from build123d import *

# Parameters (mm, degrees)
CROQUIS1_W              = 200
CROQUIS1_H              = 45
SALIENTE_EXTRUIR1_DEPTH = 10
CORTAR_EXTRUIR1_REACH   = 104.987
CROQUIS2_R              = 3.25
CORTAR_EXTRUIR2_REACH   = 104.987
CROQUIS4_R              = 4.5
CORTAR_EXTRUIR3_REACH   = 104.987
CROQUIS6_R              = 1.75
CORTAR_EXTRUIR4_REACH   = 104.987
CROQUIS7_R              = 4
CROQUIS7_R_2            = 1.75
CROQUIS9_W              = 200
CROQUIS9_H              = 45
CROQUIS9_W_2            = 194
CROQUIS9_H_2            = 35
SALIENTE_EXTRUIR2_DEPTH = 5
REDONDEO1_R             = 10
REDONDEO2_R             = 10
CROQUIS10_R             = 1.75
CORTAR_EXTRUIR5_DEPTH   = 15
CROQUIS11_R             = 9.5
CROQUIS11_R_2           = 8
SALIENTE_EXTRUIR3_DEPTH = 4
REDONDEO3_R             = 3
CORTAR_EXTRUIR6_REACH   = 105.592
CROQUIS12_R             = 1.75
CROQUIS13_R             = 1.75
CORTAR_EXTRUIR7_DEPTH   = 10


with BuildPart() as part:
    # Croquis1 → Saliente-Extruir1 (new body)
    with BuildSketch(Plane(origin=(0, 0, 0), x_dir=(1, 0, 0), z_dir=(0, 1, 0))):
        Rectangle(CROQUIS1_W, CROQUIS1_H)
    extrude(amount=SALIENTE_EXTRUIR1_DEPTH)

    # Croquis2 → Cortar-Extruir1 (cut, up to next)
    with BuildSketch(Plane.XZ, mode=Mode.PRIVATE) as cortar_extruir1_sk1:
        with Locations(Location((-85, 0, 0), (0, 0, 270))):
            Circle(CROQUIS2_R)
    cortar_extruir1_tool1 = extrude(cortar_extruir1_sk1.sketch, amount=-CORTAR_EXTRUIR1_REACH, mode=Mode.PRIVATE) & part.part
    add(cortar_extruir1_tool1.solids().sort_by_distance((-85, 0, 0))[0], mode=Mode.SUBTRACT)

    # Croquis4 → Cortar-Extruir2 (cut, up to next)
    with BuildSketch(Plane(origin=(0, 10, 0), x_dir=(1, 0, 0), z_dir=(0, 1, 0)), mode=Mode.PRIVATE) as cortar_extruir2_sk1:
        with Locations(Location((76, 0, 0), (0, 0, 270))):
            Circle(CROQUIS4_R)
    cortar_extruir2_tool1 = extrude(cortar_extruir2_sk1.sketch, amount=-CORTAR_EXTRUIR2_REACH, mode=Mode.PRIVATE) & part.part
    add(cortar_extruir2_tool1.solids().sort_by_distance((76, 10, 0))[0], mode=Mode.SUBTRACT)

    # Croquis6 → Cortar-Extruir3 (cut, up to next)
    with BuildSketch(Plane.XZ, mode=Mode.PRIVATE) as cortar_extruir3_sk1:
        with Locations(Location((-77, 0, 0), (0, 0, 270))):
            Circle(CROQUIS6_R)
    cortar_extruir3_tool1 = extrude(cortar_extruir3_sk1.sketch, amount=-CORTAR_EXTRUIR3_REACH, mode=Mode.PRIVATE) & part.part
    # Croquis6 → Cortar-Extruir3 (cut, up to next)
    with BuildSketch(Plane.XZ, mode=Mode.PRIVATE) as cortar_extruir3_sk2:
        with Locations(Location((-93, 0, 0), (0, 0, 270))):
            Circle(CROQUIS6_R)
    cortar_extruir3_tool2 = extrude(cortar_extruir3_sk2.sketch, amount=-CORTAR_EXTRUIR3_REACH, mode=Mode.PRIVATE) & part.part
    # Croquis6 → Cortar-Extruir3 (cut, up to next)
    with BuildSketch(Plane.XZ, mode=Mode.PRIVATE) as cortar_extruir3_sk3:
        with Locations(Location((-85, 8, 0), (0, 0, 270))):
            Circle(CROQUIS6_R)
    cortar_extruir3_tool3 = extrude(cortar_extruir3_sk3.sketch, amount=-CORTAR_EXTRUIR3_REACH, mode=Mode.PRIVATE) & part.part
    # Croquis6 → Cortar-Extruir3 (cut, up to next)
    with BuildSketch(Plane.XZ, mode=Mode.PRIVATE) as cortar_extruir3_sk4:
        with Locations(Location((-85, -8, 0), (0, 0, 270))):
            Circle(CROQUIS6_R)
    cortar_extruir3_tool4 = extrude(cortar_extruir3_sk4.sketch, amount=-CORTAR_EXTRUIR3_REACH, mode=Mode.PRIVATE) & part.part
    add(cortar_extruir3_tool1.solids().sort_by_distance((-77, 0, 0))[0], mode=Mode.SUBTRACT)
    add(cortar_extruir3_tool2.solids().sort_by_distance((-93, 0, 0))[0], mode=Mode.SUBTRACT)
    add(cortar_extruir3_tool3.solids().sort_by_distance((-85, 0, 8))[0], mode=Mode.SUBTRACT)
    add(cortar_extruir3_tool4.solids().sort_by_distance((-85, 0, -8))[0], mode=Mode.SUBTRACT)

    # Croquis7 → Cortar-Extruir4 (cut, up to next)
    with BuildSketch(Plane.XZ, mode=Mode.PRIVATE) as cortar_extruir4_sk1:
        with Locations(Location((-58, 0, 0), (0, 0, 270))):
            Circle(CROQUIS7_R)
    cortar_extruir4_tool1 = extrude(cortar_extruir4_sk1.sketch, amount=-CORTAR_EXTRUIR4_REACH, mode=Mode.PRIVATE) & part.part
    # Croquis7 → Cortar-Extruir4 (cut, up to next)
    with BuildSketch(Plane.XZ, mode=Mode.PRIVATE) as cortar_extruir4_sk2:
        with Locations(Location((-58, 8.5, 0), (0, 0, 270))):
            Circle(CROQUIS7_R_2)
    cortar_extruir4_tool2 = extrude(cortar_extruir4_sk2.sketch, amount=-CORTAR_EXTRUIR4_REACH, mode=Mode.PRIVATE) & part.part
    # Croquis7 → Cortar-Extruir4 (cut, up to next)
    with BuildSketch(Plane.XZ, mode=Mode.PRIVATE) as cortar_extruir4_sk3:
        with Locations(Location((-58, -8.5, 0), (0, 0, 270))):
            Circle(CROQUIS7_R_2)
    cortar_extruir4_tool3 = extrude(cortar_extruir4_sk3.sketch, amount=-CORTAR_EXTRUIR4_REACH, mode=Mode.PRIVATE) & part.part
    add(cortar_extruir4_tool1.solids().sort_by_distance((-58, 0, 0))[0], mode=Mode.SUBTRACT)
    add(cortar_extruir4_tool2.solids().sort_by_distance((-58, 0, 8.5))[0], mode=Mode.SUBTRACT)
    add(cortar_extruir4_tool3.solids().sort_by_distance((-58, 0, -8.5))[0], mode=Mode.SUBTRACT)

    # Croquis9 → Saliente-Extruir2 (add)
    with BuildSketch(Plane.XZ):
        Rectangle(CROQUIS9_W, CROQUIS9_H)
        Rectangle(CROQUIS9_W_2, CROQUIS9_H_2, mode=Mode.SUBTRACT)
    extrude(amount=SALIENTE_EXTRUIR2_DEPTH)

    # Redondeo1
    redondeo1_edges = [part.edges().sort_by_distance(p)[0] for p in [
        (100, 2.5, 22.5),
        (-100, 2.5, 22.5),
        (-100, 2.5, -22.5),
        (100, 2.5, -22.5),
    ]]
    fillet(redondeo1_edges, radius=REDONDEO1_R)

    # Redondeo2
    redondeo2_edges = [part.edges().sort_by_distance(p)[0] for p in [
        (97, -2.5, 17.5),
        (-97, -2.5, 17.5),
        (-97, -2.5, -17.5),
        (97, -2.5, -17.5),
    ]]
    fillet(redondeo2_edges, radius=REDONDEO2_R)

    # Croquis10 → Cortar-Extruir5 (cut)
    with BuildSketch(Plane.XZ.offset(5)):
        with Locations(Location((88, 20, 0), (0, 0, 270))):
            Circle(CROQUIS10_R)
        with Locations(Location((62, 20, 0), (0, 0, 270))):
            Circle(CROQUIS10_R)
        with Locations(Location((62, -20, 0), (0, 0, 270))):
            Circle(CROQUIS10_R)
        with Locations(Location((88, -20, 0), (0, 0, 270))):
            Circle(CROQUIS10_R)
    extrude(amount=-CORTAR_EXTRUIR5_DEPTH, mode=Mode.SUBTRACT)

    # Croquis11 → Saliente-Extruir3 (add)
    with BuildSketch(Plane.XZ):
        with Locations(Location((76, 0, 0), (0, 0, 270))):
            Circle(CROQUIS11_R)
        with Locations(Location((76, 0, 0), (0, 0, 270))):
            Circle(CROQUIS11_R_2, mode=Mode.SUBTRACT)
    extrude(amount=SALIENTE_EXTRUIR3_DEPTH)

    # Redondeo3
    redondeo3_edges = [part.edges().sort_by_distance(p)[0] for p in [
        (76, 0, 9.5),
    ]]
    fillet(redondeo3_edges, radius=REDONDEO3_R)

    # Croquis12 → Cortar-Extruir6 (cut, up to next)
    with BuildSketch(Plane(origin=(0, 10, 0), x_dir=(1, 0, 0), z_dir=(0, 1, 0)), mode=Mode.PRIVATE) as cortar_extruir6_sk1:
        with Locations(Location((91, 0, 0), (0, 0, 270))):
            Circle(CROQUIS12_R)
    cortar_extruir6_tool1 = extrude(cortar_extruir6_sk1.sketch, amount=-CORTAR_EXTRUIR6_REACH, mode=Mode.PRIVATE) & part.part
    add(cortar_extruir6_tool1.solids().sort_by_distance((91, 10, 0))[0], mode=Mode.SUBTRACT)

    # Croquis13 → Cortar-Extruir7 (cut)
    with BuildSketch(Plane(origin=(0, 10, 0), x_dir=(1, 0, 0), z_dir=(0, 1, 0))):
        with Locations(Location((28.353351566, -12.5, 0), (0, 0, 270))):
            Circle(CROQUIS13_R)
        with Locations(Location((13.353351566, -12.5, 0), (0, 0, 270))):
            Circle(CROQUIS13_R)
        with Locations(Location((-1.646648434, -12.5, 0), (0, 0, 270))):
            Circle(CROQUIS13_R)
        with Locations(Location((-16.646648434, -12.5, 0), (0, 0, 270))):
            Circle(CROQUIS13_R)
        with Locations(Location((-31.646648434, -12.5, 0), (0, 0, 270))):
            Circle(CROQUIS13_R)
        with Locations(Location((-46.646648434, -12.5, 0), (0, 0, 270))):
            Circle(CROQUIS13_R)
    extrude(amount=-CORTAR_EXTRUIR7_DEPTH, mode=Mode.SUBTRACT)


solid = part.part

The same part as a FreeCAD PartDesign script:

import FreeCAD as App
import Part
import Sketcher


def edges_at(feature, points):
    """Names of the edges that pass closest to the given points."""
    edges = feature.Shape.Edges
    near = lambda p: min(range(len(edges)), key=lambda i: edges[i].distToShape(Part.Vertex(*p))[0])
    return sorted({f"Edge{near(p) + 1}" for p in points})

doc = App.newDocument("Part")
body = doc.addObject("PartDesign::Body", "Body")

# Sketch on XZ plane
sketch1 = body.newObject("Sketcher::SketchObject", "Sketch")
sketch1.AttachmentSupport = (doc.getObject("XZ_Plane"), [""])
sketch1.MapMode = "FlatFace"
sketch1.addGeometry(Part.LineSegment(App.Vector(-100, -22, 0), App.Vector(-100, 22, 0)), False)
sketch1.addGeometry(Part.LineSegment(App.Vector(-100, 22, 0), App.Vector(100, 22, 0)), False)
sketch1.addGeometry(Part.LineSegment(App.Vector(100, 22, 0), App.Vector(100, -22, 0)), False)
sketch1.addGeometry(Part.LineSegment(App.Vector(100, -22, 0), App.Vector(-100, -22, 0)), False)
sketch1.addConstraint(Sketcher.Constraint("Coincident", 0, 2, 1, 1))
sketch1.addConstraint(Sketcher.Constraint("Coincident", 1, 2, 2, 1))
sketch1.addConstraint(Sketcher.Constraint("Coincident", 2, 2, 3, 1))
sketch1.addConstraint(Sketcher.Constraint("Coincident", 3, 2, 0, 1))
sketch1.addConstraint(Sketcher.Constraint("Vertical", 0))
sketch1.addConstraint(Sketcher.Constraint("Horizontal", 1))
sketch1.addConstraint(Sketcher.Constraint("Vertical", 2))
sketch1.addConstraint(Sketcher.Constraint("Horizontal", 3))
sketch1.addConstraint(Sketcher.Constraint("Symmetric", 0, 2, 2, 2, -1, 1))
sketch1.addConstraint(Sketcher.Constraint("DistanceX", 1, 1, 1, 2, 200.0))
sketch1.addConstraint(Sketcher.Constraint("DistanceY", 0, 1, 0, 2, 45.0))
pad1 = body.newObject("PartDesign::Pad", "Pad")
pad1.Profile = sketch1
pad1.Length = 10
pad1.Reversed = True

# Sketch on XZ plane
sketch2 = body.newObject("Sketcher::SketchObject", "Sketch001")
sketch2.AttachmentSupport = (doc.getObject("XZ_Plane"), [""])
sketch2.MapMode = "FlatFace"
sketch2.addGeometry(Part.Circle(App.Vector(-85, 0, 0), App.Vector(0, 0, 1), 3.2), False)
sketch2.addConstraint(Sketcher.Constraint("PointOnObject", 0, 3, -1))
sketch2.addConstraint(Sketcher.Constraint("Diameter", 0, 6.5))
sketch2.addConstraint(Sketcher.Constraint("DistanceX", 0, 3, -1, 1, 85.0))
pocket1 = body.newObject("PartDesign::Pocket", "Pocket")
pocket1.Profile = sketch2
pocket1.Type = "UpToFirst"

# Sketch on XZ plane
sketch3 = body.newObject("Sketcher::SketchObject", "Sketch002")
sketch3.AttachmentSupport = (doc.getObject("XZ_Plane"), [""])
sketch3.MapMode = "FlatFace"
sketch3.AttachmentOffset = App.Placement(App.Vector(0, 0, -10), App.Rotation())
sketch3.addGeometry(Part.Circle(App.Vector(76, 0, 0), App.Vector(0, 0, 1), 4.5), False)
sketch3.addConstraint(Sketcher.Constraint("PointOnObject", 0, 3, -1))
sketch3.addConstraint(Sketcher.Constraint("Diameter", 0, 9.0))
sketch3.addConstraint(Sketcher.Constraint("DistanceX", -1, 1, 0, 3, 76.0))
pocket2 = body.newObject("PartDesign::Pocket", "Pocket001")
pocket2.Profile = sketch3
pocket2.Type = "UpToFirst"
pocket2.Reversed = True

# Sketch on XZ plane
sketch4 = body.newObject("Sketcher::SketchObject", "Sketch003")
sketch4.AttachmentSupport = (doc.getObject("XZ_Plane"), [""])
sketch4.MapMode = "FlatFace"
sketch4.addGeometry(Part.Circle(App.Vector(-77, 0, 0), App.Vector(0, 0, 1), 1.8), False)
sketch4.addConstraint(Sketcher.Constraint("PointOnObject", 0, 3, -1))
sketch4.addConstraint(Sketcher.Constraint("Diameter", 0, 3.5))
sketch4.addConstraint(Sketcher.Constraint("DistanceX", 0, 3, -1, 1, 77.0))
pocket3 = body.newObject("PartDesign::Pocket", "Pocket002")
pocket3.Profile = sketch4
pocket3.Type = "UpToFirst"

# Sketch on XZ plane
sketch5 = body.newObject("Sketcher::SketchObject", "Sketch004")
sketch5.AttachmentSupport = (doc.getObject("XZ_Plane"), [""])
sketch5.MapMode = "FlatFace"
sketch5.addGeometry(Part.Circle(App.Vector(-93, 0, 0), App.Vector(0, 0, 1), 1.8), False)
sketch5.addConstraint(Sketcher.Constraint("PointOnObject", 0, 3, -1))
sketch5.addConstraint(Sketcher.Constraint("Diameter", 0, 3.5))
sketch5.addConstraint(Sketcher.Constraint("DistanceX", 0, 3, -1, 1, 93.0))
pocket4 = body.newObject("PartDesign::Pocket", "Pocket003")
pocket4.Profile = sketch5
pocket4.Type = "UpToFirst"

# Sketch on XZ plane
sketch6 = body.newObject("Sketcher::SketchObject", "Sketch005")
sketch6.AttachmentSupport = (doc.getObject("XZ_Plane"), [""])
sketch6.MapMode = "FlatFace"
sketch6.addGeometry(Part.Circle(App.Vector(-85, 8, 0), App.Vector(0, 0, 1), 1.8), False)
sketch6.addConstraint(Sketcher.Constraint("Diameter", 0, 3.5))
sketch6.addConstraint(Sketcher.Constraint("DistanceX", 0, 3, -1, 1, 85.0))
sketch6.addConstraint(Sketcher.Constraint("DistanceY", -1, 1, 0, 3, 8.0))
pocket5 = body.newObject("PartDesign::Pocket", "Pocket004")
pocket5.Profile = sketch6
pocket5.Type = "UpToFirst"

# Sketch on XZ plane
sketch7 = body.newObject("Sketcher::SketchObject", "Sketch006")
sketch7.AttachmentSupport = (doc.getObject("XZ_Plane"), [""])
sketch7.MapMode = "FlatFace"
sketch7.addGeometry(Part.Circle(App.Vector(-85, -8, 0), App.Vector(0, 0, 1), 1.8), False)
sketch7.addConstraint(Sketcher.Constraint("Diameter", 0, 3.5))
sketch7.addConstraint(Sketcher.Constraint("DistanceX", 0, 3, -1, 1, 85.0))
sketch7.addConstraint(Sketcher.Constraint("DistanceY", 0, 3, -1, 1, 8.0))
pocket6 = body.newObject("PartDesign::Pocket", "Pocket005")
pocket6.Profile = sketch7
pocket6.Type = "UpToFirst"

# Sketch on XZ plane
sketch8 = body.newObject("Sketcher::SketchObject", "Sketch007")
sketch8.AttachmentSupport = (doc.getObject("XZ_Plane"), [""])
sketch8.MapMode = "FlatFace"
sketch8.addGeometry(Part.Circle(App.Vector(-58, 0, 0), App.Vector(0, 0, 1), 4), False)
sketch8.addConstraint(Sketcher.Constraint("PointOnObject", 0, 3, -1))
sketch8.addConstraint(Sketcher.Constraint("Diameter", 0, 8.0))
sketch8.addConstraint(Sketcher.Constraint("DistanceX", 0, 3, -1, 1, 58.0))
pocket7 = body.newObject("PartDesign::Pocket", "Pocket006")
pocket7.Profile = sketch8
pocket7.Type = "UpToFirst"

# Sketch on XZ plane
sketch9 = body.newObject("Sketcher::SketchObject", "Sketch008")
sketch9.AttachmentSupport = (doc.getObject("XZ_Plane"), [""])
sketch9.MapMode = "FlatFace"
sketch9.addGeometry(Part.Circle(App.Vector(-58, 8.5, 0), App.Vector(0, 0, 1), 1.8), False)
sketch9.addConstraint(Sketcher.Constraint("Diameter", 0, 3.5))
sketch9.addConstraint(Sketcher.Constraint("DistanceX", 0, 3, -1, 1, 58.0))
sketch9.addConstraint(Sketcher.Constraint("DistanceY", -1, 1, 0, 3, 8.5))
pocket8 = body.newObject("PartDesign::Pocket", "Pocket007")
pocket8.Profile = sketch9
pocket8.Type = "UpToFirst"

# Sketch on XZ plane
sketch10 = body.newObject("Sketcher::SketchObject", "Sketch009")
sketch10.AttachmentSupport = (doc.getObject("XZ_Plane"), [""])
sketch10.MapMode = "FlatFace"
sketch10.addGeometry(Part.Circle(App.Vector(-58, -8.5, 0), App.Vector(0, 0, 1), 1.8), False)
sketch10.addConstraint(Sketcher.Constraint("Diameter", 0, 3.5))
sketch10.addConstraint(Sketcher.Constraint("DistanceX", 0, 3, -1, 1, 58.0))
sketch10.addConstraint(Sketcher.Constraint("DistanceY", 0, 3, -1, 1, 8.5))
pocket9 = body.newObject("PartDesign::Pocket", "Pocket008")
pocket9.Profile = sketch10
pocket9.Type = "UpToFirst"

# Sketch on XZ plane
sketch11 = body.newObject("Sketcher::SketchObject", "Sketch010")
sketch11.AttachmentSupport = (doc.getObject("XZ_Plane"), [""])
sketch11.MapMode = "FlatFace"
sketch11.addGeometry(Part.LineSegment(App.Vector(-100, 22, 0), App.Vector(-100, -22, 0)), False)
sketch11.addGeometry(Part.LineSegment(App.Vector(-100, -22, 0), App.Vector(100, -22, 0)), False)
sketch11.addGeometry(Part.LineSegment(App.Vector(100, -22, 0), App.Vector(100, 22, 0)), False)
sketch11.addGeometry(Part.LineSegment(App.Vector(100, 22, 0), App.Vector(-100, 22, 0)), False)
sketch11.addGeometry(Part.LineSegment(App.Vector(97, -18, 0), App.Vector(-97, -18, 0)), False)
sketch11.addGeometry(Part.LineSegment(App.Vector(-97, -18, 0), App.Vector(-97, 18, 0)), False)
sketch11.addGeometry(Part.LineSegment(App.Vector(-97, 18, 0), App.Vector(97, 18, 0)), False)
sketch11.addGeometry(Part.LineSegment(App.Vector(97, 18, 0), App.Vector(97, -18, 0)), False)
sketch11.addConstraint(Sketcher.Constraint("Coincident", 0, 2, 1, 1))
sketch11.addConstraint(Sketcher.Constraint("Coincident", 1, 2, 2, 1))
sketch11.addConstraint(Sketcher.Constraint("Coincident", 2, 2, 3, 1))
sketch11.addConstraint(Sketcher.Constraint("Coincident", 3, 2, 0, 1))
sketch11.addConstraint(Sketcher.Constraint("Coincident", 4, 2, 5, 1))
sketch11.addConstraint(Sketcher.Constraint("Coincident", 5, 2, 6, 1))
sketch11.addConstraint(Sketcher.Constraint("Coincident", 6, 2, 7, 1))
sketch11.addConstraint(Sketcher.Constraint("Coincident", 7, 2, 4, 1))
sketch11.addConstraint(Sketcher.Constraint("Vertical", 0))
sketch11.addConstraint(Sketcher.Constraint("Horizontal", 1))
sketch11.addConstraint(Sketcher.Constraint("Vertical", 2))
sketch11.addConstraint(Sketcher.Constraint("Horizontal", 3))
sketch11.addConstraint(Sketcher.Constraint("Horizontal", 4))
sketch11.addConstraint(Sketcher.Constraint("Vertical", 5))
sketch11.addConstraint(Sketcher.Constraint("Horizontal", 6))
sketch11.addConstraint(Sketcher.Constraint("Vertical", 7))
sketch11.addConstraint(Sketcher.Constraint("Symmetric", 0, 2, 2, 2, -1, 1))
sketch11.addConstraint(Sketcher.Constraint("Symmetric", 4, 2, 6, 2, -1, 1))
sketch11.addConstraint(Sketcher.Constraint("DistanceX", 1, 1, 1, 2, 200.0))
sketch11.addConstraint(Sketcher.Constraint("DistanceX", 4, 2, 4, 1, 194.0))
sketch11.addConstraint(Sketcher.Constraint("DistanceY", 0, 2, 0, 1, 45.0))
sketch11.addConstraint(Sketcher.Constraint("DistanceY", 5, 1, 5, 2, 35.0))
pad2 = body.newObject("PartDesign::Pad", "Pad001")
pad2.Profile = sketch11
pad2.Length = 5
doc.recompute()

fillet = body.newObject("PartDesign::Fillet", "Fillet")
fillet.Base = (pad2, edges_at(pad2, [
    (100, 2.5, 22.5),
    (-100, 2.5, 22.5),
    (-100, 2.5, -22.5),
    (100, 2.5, -22.5),
]))
fillet.Radius = 10
doc.recompute()

fillet2 = body.newObject("PartDesign::Fillet", "Fillet001")
fillet2.Base = (fillet, edges_at(fillet, [
    (97, -2.5, 17.5),
    (-97, -2.5, 17.5),
    (-97, -2.5, -17.5),
    (97, -2.5, -17.5),
]))
fillet2.Radius = 10

# Sketch on XZ plane
sketch12 = body.newObject("Sketcher::SketchObject", "Sketch011")
sketch12.AttachmentSupport = (doc.getObject("XZ_Plane"), [""])
sketch12.MapMode = "FlatFace"
sketch12.AttachmentOffset = App.Placement(App.Vector(0, 0, 5), App.Rotation())
sketch12.addGeometry(Part.Circle(App.Vector(88, 20, 0), App.Vector(0, 0, 1), 1.8), False)
sketch12.addGeometry(Part.Circle(App.Vector(62, 20, 0), App.Vector(0, 0, 1), 1.8), False)
sketch12.addGeometry(Part.Circle(App.Vector(62, -20, 0), App.Vector(0, 0, 1), 1.8), False)
sketch12.addGeometry(Part.Circle(App.Vector(88, -20, 0), App.Vector(0, 0, 1), 1.8), False)
sketch12.addConstraint(Sketcher.Constraint("Equal", 0, 1))
sketch12.addConstraint(Sketcher.Constraint("Equal", 1, 2))
sketch12.addConstraint(Sketcher.Constraint("Equal", 2, 3))
sketch12.addConstraint(Sketcher.Constraint("Symmetric", 1, 3, 2, 3, -1))
sketch12.addConstraint(Sketcher.Constraint("Symmetric", 0, 3, 3, 3, -1))
sketch12.addConstraint(Sketcher.Constraint("Horizontal", 0, 3, 1, 3))
sketch12.addConstraint(Sketcher.Constraint("Diameter", 0, 3.5))
sketch12.addConstraint(Sketcher.Constraint("DistanceX", -1, 1, 0, 3, 88.0))
sketch12.addConstraint(Sketcher.Constraint("DistanceY", -1, 1, 0, 3, 20.0))
sketch12.addConstraint(Sketcher.Constraint("DistanceX", -1, 1, 1, 3, 62.0))
pocket10 = body.newObject("PartDesign::Pocket", "Pocket009")
pocket10.Profile = sketch12
pocket10.Length = 15

# Sketch on XZ plane
sketch13 = body.newObject("Sketcher::SketchObject", "Sketch012")
sketch13.AttachmentSupport = (doc.getObject("XZ_Plane"), [""])
sketch13.MapMode = "FlatFace"
sketch13.addGeometry(Part.Circle(App.Vector(76, 0, 0), App.Vector(0, 0, 1), 10), False)
sketch13.addGeometry(Part.Circle(App.Vector(76, 0, 0), App.Vector(0, 0, 1), 8), False)
sketch13.addConstraint(Sketcher.Constraint("Coincident", 1, 3, 0, 3))
sketch13.addConstraint(Sketcher.Constraint("PointOnObject", 0, 3, -1))
sketch13.addConstraint(Sketcher.Constraint("Diameter", 0, 19.0))
sketch13.addConstraint(Sketcher.Constraint("Diameter", 1, 16.0))
sketch13.addConstraint(Sketcher.Constraint("DistanceX", -1, 1, 0, 3, 76.0))
pad3 = body.newObject("PartDesign::Pad", "Pad002")
pad3.Profile = sketch13
pad3.Length = 4
doc.recompute()

fillet3 = body.newObject("PartDesign::Fillet", "Fillet002")
fillet3.Base = (pad3, edges_at(pad3, [(76, 0, 9.5)]))
fillet3.Radius = 3

# Sketch on XZ plane
sketch14 = body.newObject("Sketcher::SketchObject", "Sketch013")
sketch14.AttachmentSupport = (doc.getObject("XZ_Plane"), [""])
sketch14.MapMode = "FlatFace"
sketch14.AttachmentOffset = App.Placement(App.Vector(0, 0, -10), App.Rotation())
sketch14.addGeometry(Part.Circle(App.Vector(91, 0, 0), App.Vector(0, 0, 1), 1.8), False)
sketch14.addConstraint(Sketcher.Constraint("PointOnObject", 0, 3, -1))
sketch14.addConstraint(Sketcher.Constraint("Diameter", 0, 3.5))
sketch14.addConstraint(Sketcher.Constraint("DistanceX", -1, 1, 0, 3, 91.0))
pocket11 = body.newObject("PartDesign::Pocket", "Pocket010")
pocket11.Profile = sketch14
pocket11.Type = "UpToFirst"
pocket11.Reversed = True

# Sketch on XZ plane
sketch15 = body.newObject("Sketcher::SketchObject", "Sketch014")
sketch15.AttachmentSupport = (doc.getObject("XZ_Plane"), [""])
sketch15.MapMode = "FlatFace"
sketch15.AttachmentOffset = App.Placement(App.Vector(0, 0, -10), App.Rotation())
sketch15.addGeometry(Part.Circle(App.Vector(28.4, 12.5, 0), App.Vector(0, 0, 1), 1.8), False)
sketch15.addGeometry(Part.Circle(App.Vector(13.4, 12.5, 0), App.Vector(0, 0, 1), 1.8), False)
sketch15.addGeometry(Part.Circle(App.Vector(-1.6, 12.5, 0), App.Vector(0, 0, 1), 1.8), False)
sketch15.addGeometry(Part.Circle(App.Vector(-16.6, 12.5, 0), App.Vector(0, 0, 1), 1.8), False)
sketch15.addGeometry(Part.Circle(App.Vector(-31.6, 12.5, 0), App.Vector(0, 0, 1), 1.8), False)
sketch15.addGeometry(Part.Circle(App.Vector(-46.6, 12.5, 0), App.Vector(0, 0, 1), 1.8), False)
sketch15.addConstraint(Sketcher.Constraint("Equal", 0, 1))
sketch15.addConstraint(Sketcher.Constraint("Equal", 1, 2))
sketch15.addConstraint(Sketcher.Constraint("Equal", 2, 3))
sketch15.addConstraint(Sketcher.Constraint("Equal", 3, 4))
sketch15.addConstraint(Sketcher.Constraint("Equal", 4, 5))
sketch15.addConstraint(Sketcher.Constraint("Horizontal", 0, 3, 1, 3))
sketch15.addConstraint(Sketcher.Constraint("Horizontal", 1, 3, 2, 3))
sketch15.addConstraint(Sketcher.Constraint("Horizontal", 2, 3, 3, 3))
sketch15.addConstraint(Sketcher.Constraint("Horizontal", 3, 3, 4, 3))
sketch15.addConstraint(Sketcher.Constraint("Horizontal", 4, 3, 5, 3))
sketch15.addConstraint(Sketcher.Constraint("Diameter", 0, 3.5))
sketch15.addConstraint(Sketcher.Constraint("DistanceX", 1, 3, 0, 3, 15.0))
sketch15.addConstraint(Sketcher.Constraint("DistanceX", 2, 3, 1, 3, 15.0))
sketch15.addConstraint(Sketcher.Constraint("DistanceX", 3, 3, 2, 3, 15.0))
sketch15.addConstraint(Sketcher.Constraint("DistanceX", 4, 3, 3, 3, 15.0))
sketch15.addConstraint(Sketcher.Constraint("DistanceX", 5, 3, 4, 3, 15.0))
sketch15.addConstraint(Sketcher.Constraint("DistanceY", -1, 1, 0, 3, 12.5))
sketch15.addConstraint(Sketcher.Constraint("DistanceX", -1, 1, 0, 3, 28.353352))
pocket12 = body.newObject("PartDesign::Pocket", "Pocket011")
pocket12.Profile = sketch15
pocket12.Length = 10
pocket12.Reversed = True

doc.recompute()
